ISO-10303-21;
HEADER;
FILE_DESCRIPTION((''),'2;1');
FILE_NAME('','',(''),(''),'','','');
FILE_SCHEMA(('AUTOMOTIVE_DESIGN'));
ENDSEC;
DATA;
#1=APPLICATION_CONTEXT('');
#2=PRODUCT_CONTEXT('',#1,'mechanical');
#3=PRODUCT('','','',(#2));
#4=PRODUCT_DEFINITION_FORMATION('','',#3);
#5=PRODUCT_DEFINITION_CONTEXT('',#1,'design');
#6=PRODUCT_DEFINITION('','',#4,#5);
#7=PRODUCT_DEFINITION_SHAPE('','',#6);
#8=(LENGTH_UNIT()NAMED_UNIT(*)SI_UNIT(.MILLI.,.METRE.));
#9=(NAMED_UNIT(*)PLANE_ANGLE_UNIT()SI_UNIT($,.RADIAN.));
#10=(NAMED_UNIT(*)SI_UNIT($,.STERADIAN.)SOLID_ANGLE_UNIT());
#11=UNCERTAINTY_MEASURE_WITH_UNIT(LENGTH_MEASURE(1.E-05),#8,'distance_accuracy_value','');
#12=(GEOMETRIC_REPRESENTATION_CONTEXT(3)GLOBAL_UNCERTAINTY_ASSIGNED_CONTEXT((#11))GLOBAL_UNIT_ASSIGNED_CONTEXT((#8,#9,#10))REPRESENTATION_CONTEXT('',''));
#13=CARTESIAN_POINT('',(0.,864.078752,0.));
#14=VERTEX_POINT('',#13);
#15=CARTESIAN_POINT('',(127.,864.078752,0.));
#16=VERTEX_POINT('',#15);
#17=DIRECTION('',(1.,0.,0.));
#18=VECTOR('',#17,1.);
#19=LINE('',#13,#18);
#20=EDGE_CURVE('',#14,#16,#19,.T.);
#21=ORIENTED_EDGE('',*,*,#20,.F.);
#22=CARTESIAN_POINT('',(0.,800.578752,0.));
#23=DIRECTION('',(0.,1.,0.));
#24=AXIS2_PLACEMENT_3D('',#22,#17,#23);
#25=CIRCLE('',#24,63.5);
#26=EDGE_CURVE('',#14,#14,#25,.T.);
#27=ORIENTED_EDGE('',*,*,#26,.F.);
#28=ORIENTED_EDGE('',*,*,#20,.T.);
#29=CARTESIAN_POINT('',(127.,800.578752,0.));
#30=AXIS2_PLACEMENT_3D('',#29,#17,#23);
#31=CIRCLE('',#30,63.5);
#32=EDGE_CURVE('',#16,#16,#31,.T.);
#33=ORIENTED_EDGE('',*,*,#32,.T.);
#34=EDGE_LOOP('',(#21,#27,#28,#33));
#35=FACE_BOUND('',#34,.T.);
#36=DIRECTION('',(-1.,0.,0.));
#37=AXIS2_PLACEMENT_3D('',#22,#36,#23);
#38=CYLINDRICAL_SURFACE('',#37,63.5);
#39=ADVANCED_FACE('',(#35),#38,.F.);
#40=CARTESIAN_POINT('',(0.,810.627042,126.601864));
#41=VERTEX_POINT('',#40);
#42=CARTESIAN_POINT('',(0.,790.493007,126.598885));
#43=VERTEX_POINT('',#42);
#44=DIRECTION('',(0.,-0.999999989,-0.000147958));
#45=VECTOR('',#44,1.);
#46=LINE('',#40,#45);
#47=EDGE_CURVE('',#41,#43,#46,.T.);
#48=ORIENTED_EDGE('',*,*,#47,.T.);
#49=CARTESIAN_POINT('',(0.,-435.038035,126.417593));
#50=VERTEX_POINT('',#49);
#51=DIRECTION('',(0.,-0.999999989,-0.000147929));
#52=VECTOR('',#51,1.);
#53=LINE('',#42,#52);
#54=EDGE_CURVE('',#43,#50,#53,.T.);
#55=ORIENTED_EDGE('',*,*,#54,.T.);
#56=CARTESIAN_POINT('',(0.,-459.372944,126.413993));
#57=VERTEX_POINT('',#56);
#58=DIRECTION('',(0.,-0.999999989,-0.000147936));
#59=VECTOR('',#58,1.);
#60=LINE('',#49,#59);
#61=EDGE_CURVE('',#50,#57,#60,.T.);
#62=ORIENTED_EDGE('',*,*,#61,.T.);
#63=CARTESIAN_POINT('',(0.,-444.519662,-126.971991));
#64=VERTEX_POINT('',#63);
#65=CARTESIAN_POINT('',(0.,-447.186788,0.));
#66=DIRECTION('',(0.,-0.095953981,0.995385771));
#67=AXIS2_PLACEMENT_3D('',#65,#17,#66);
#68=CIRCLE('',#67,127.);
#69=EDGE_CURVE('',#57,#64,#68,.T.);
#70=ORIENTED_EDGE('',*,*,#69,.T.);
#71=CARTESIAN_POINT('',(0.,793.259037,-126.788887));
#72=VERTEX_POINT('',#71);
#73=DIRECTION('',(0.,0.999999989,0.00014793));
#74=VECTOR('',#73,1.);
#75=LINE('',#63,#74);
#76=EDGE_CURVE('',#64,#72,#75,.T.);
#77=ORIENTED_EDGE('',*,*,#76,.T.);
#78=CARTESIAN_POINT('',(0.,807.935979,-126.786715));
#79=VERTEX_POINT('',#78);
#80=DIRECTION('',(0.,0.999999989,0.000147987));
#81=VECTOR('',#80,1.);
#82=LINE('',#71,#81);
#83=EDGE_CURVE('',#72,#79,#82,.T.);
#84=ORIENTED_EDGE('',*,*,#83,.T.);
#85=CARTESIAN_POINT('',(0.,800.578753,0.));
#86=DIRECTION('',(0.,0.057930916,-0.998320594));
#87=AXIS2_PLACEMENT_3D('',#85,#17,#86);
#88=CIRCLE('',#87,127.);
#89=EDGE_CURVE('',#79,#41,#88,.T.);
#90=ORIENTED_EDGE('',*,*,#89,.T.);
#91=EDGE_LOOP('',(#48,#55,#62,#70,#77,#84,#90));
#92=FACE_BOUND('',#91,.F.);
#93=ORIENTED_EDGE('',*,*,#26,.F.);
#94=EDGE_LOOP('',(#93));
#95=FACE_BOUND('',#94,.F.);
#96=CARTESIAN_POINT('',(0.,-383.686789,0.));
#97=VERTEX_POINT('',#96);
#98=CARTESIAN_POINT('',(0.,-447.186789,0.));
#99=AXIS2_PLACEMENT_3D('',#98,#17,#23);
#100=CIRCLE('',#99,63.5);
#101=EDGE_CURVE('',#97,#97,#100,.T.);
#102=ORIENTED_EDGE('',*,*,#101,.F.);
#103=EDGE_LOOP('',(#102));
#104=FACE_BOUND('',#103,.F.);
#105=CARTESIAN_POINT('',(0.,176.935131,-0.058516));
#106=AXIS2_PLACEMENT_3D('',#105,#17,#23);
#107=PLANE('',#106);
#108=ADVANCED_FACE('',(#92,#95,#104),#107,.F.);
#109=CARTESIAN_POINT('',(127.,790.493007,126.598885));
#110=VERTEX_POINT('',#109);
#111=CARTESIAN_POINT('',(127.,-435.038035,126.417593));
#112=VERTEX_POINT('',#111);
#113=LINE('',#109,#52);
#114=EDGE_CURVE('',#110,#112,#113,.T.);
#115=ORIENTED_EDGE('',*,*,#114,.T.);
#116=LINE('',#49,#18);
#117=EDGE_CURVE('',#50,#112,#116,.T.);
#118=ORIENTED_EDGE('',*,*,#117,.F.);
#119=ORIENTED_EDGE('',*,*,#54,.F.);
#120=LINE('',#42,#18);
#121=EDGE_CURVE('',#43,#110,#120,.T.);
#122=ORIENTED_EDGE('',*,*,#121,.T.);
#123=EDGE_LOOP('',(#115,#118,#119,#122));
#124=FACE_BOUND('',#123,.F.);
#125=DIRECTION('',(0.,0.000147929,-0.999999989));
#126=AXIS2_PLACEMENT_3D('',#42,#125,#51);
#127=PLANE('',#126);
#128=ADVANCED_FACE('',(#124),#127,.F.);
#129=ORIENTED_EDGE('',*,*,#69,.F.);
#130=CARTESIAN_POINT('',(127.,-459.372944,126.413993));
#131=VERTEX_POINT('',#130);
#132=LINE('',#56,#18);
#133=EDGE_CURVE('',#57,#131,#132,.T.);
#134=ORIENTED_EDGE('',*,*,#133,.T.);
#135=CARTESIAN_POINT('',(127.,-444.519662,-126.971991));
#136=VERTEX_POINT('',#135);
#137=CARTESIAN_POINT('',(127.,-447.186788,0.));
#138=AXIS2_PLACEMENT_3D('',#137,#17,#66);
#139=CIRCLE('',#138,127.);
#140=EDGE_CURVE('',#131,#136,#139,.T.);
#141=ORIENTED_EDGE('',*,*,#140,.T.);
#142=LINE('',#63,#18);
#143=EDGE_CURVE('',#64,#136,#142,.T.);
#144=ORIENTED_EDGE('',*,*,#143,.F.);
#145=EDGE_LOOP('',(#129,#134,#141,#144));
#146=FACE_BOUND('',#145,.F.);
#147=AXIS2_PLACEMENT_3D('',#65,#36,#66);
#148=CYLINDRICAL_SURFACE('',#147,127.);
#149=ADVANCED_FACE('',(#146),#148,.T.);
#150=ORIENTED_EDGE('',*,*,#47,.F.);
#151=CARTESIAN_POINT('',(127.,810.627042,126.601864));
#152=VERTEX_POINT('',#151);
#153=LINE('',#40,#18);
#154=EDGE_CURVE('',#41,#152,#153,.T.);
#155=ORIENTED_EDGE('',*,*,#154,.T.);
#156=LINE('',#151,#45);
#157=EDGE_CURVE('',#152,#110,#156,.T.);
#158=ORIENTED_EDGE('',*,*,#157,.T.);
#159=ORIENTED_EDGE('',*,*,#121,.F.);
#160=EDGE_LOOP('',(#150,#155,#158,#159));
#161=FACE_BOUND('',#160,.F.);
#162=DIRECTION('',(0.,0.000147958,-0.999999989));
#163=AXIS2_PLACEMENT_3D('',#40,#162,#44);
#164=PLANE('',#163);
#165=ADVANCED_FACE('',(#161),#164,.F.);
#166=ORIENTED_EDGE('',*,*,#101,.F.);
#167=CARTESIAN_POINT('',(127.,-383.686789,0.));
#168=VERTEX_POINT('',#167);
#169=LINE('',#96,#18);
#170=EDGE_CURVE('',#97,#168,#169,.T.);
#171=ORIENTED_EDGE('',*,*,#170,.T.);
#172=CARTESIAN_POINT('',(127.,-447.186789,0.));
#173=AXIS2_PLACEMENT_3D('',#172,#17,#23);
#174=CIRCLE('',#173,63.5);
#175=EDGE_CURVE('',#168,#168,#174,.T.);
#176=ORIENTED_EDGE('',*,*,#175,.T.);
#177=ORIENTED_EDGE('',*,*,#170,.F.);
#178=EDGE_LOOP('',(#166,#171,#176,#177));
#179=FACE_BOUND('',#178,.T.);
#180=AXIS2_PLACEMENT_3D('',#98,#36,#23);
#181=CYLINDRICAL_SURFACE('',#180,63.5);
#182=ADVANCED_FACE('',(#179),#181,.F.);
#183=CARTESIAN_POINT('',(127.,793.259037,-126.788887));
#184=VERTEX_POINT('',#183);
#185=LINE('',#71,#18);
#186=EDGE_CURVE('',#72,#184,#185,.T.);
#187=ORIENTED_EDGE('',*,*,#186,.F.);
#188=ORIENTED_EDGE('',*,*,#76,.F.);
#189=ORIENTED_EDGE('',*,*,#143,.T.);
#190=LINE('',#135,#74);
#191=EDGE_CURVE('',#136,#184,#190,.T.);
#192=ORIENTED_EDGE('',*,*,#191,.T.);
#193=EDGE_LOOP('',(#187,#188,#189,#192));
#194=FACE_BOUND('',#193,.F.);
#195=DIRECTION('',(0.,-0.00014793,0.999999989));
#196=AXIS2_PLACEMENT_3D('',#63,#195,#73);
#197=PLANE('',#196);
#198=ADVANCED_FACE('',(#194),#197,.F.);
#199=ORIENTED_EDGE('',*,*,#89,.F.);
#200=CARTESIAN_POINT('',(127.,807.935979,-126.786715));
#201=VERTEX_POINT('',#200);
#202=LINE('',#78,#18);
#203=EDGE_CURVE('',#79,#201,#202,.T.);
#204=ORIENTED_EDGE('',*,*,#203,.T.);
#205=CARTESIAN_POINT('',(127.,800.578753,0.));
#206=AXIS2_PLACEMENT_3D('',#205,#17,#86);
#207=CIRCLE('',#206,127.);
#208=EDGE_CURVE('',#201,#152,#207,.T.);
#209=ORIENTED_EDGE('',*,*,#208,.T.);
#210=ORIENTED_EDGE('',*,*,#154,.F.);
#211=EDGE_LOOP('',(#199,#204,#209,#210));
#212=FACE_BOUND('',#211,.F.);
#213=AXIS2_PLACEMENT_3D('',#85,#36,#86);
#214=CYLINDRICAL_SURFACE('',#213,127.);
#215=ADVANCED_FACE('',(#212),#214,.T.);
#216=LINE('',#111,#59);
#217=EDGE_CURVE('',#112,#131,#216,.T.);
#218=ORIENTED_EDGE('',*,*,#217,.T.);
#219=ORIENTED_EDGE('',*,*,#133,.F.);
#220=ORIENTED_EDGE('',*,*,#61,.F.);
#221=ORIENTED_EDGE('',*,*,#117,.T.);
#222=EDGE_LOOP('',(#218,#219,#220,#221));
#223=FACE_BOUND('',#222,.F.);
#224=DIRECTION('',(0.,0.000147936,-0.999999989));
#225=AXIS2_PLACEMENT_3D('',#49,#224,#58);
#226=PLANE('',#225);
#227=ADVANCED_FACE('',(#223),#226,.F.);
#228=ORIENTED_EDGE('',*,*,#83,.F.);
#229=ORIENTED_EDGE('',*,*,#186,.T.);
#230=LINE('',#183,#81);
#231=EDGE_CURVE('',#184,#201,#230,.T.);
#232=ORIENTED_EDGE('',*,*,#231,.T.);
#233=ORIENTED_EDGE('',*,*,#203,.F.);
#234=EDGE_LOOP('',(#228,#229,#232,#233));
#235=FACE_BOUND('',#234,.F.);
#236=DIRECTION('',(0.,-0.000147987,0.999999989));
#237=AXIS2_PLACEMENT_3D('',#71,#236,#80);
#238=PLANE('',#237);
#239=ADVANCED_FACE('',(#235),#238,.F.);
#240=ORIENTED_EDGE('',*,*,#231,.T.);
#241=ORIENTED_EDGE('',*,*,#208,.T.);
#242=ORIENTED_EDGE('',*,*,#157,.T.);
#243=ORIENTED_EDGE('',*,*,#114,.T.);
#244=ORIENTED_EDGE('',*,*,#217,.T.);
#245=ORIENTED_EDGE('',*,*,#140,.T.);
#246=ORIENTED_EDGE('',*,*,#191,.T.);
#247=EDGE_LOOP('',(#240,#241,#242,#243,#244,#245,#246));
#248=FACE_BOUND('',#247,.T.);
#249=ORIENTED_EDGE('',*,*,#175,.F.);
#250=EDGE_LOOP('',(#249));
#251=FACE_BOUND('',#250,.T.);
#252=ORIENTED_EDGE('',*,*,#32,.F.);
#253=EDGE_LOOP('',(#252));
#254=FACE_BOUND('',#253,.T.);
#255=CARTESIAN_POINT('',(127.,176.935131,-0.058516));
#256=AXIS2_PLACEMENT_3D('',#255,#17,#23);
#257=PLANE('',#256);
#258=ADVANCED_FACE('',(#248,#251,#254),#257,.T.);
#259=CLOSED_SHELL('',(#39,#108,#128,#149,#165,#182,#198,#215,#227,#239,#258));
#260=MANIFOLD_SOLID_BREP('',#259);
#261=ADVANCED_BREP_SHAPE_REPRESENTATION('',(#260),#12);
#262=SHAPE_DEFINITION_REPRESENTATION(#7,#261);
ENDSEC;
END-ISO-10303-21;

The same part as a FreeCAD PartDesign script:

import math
import FreeCAD as App
import Part
import Sketcher

V = App.Vector
Q = App.Units.Quantity

doc = App.newDocument("Part")
body = doc.addObject("PartDesign::Body", "Body")

# Sketch on YZ plane
sketch1 = body.newObject("Sketcher::SketchObject", "Sketch")
sketch1.AttachmentSupport = (doc.getObject("YZ_Plane"), [""])
sketch1.MapMode = "FlatFace"
sketch1.addGeometry([
    Part.LineSegment(V(790.493007, 126.598885, 0), V(-435.038035, 126.417593, 0)),  # 0
    Part.LineSegment(V(-435.038035, 126.417593, 0), V(-459.372944, 126.413993, 0)),  # 1
    Part.ArcOfCircle(Part.Circle(V(-447.186788, 0, 0), V(0, 0, 1), 127), math.radians(95.50623), math.radians(271.203357)),  # 2
    Part.LineSegment(V(-444.519662, -126.971991, 0), V(793.259037, -126.788887, 0)),  # 3
    Part.LineSegment(V(793.259037, -126.788887, 0), V(807.935979, -126.786715, 0)),  # 4
    Part.ArcOfCircle(Part.Circle(V(800.578753, 0, 0), V(0, 0, 1), 127), math.radians(-86.678944), math.radians(85.461993)),  # 5
    Part.LineSegment(V(810.627042, 126.601864, 0), V(790.493007, 126.598885, 0)),  # 6
    Part.Circle(V(-447.186789, 0, 0), V(0, 0, 1), 63.5),  # 7
    Part.Circle(V(800.578752, 0, 0), V(0, 0, 1), 63.5),  # 8
], False)
sketch1.addConstraint([
    Sketcher.Constraint("Coincident", 0, 2, 1, 1),
    Sketcher.Constraint("Coincident", 1, 2, 2, 1),
    Sketcher.Constraint("Coincident", 2, 2, 3, 1),
    Sketcher.Constraint("Coincident", 3, 2, 4, 1),
    Sketcher.Constraint("Coincident", 4, 2, 5, 1),
    Sketcher.Constraint("Coincident", 5, 2, 6, 1),
    Sketcher.Constraint("Coincident", 6, 2, 0, 1),
    Sketcher.Constraint("Coincident", 7, 3, 2, 3),
    Sketcher.Constraint("Coincident", 8, 3, 5, 3),
    Sketcher.Constraint("Equal", 2, 5),
    Sketcher.Constraint("Equal", 7, 8),
    Sketcher.Constraint("PointOnObject", 2, 3, -1),
    Sketcher.Constraint("PointOnObject", 5, 3, -1),
    Sketcher.Constraint("Parallel", 0, 1),
    Sketcher.Constraint("Parallel", 1, 3),
    Sketcher.Constraint("Parallel", 3, 4),
    Sketcher.Constraint("Parallel", 4, 6),
    Sketcher.Constraint("Diameter", 7, Q("5 in")),
    Sketcher.Constraint("Radius", 2, Q("5 in")),
    Sketcher.Constraint("DistanceX", 2, 2, 3, 2, 1237.778699),
    Sketcher.Constraint("DistanceY", 4, 2, 6, 2, 253.3856),
    Sketcher.Constraint("Distance", 1, 24.334909),
    Sketcher.Constraint("DistanceX", 2, 3, -1, 1, 447.186788),
    Sketcher.Constraint("DistanceX", -1, 1, 8, 3, 800.578752),
    Sketcher.Constraint("DistanceY", 2, 2, -1, 1, 126.971991),
    Sketcher.Constraint("DistanceX", -1, 1, 4, 2, 807.935979),
    Sketcher.Constraint("DistanceX", 6, 2, 3, 2, 2.76603),
])
pad1 = body.newObject("PartDesign::Pad", "Pad")
pad1.Profile = sketch1
pad1.Length = Q("5 in")

doc.recompute()
